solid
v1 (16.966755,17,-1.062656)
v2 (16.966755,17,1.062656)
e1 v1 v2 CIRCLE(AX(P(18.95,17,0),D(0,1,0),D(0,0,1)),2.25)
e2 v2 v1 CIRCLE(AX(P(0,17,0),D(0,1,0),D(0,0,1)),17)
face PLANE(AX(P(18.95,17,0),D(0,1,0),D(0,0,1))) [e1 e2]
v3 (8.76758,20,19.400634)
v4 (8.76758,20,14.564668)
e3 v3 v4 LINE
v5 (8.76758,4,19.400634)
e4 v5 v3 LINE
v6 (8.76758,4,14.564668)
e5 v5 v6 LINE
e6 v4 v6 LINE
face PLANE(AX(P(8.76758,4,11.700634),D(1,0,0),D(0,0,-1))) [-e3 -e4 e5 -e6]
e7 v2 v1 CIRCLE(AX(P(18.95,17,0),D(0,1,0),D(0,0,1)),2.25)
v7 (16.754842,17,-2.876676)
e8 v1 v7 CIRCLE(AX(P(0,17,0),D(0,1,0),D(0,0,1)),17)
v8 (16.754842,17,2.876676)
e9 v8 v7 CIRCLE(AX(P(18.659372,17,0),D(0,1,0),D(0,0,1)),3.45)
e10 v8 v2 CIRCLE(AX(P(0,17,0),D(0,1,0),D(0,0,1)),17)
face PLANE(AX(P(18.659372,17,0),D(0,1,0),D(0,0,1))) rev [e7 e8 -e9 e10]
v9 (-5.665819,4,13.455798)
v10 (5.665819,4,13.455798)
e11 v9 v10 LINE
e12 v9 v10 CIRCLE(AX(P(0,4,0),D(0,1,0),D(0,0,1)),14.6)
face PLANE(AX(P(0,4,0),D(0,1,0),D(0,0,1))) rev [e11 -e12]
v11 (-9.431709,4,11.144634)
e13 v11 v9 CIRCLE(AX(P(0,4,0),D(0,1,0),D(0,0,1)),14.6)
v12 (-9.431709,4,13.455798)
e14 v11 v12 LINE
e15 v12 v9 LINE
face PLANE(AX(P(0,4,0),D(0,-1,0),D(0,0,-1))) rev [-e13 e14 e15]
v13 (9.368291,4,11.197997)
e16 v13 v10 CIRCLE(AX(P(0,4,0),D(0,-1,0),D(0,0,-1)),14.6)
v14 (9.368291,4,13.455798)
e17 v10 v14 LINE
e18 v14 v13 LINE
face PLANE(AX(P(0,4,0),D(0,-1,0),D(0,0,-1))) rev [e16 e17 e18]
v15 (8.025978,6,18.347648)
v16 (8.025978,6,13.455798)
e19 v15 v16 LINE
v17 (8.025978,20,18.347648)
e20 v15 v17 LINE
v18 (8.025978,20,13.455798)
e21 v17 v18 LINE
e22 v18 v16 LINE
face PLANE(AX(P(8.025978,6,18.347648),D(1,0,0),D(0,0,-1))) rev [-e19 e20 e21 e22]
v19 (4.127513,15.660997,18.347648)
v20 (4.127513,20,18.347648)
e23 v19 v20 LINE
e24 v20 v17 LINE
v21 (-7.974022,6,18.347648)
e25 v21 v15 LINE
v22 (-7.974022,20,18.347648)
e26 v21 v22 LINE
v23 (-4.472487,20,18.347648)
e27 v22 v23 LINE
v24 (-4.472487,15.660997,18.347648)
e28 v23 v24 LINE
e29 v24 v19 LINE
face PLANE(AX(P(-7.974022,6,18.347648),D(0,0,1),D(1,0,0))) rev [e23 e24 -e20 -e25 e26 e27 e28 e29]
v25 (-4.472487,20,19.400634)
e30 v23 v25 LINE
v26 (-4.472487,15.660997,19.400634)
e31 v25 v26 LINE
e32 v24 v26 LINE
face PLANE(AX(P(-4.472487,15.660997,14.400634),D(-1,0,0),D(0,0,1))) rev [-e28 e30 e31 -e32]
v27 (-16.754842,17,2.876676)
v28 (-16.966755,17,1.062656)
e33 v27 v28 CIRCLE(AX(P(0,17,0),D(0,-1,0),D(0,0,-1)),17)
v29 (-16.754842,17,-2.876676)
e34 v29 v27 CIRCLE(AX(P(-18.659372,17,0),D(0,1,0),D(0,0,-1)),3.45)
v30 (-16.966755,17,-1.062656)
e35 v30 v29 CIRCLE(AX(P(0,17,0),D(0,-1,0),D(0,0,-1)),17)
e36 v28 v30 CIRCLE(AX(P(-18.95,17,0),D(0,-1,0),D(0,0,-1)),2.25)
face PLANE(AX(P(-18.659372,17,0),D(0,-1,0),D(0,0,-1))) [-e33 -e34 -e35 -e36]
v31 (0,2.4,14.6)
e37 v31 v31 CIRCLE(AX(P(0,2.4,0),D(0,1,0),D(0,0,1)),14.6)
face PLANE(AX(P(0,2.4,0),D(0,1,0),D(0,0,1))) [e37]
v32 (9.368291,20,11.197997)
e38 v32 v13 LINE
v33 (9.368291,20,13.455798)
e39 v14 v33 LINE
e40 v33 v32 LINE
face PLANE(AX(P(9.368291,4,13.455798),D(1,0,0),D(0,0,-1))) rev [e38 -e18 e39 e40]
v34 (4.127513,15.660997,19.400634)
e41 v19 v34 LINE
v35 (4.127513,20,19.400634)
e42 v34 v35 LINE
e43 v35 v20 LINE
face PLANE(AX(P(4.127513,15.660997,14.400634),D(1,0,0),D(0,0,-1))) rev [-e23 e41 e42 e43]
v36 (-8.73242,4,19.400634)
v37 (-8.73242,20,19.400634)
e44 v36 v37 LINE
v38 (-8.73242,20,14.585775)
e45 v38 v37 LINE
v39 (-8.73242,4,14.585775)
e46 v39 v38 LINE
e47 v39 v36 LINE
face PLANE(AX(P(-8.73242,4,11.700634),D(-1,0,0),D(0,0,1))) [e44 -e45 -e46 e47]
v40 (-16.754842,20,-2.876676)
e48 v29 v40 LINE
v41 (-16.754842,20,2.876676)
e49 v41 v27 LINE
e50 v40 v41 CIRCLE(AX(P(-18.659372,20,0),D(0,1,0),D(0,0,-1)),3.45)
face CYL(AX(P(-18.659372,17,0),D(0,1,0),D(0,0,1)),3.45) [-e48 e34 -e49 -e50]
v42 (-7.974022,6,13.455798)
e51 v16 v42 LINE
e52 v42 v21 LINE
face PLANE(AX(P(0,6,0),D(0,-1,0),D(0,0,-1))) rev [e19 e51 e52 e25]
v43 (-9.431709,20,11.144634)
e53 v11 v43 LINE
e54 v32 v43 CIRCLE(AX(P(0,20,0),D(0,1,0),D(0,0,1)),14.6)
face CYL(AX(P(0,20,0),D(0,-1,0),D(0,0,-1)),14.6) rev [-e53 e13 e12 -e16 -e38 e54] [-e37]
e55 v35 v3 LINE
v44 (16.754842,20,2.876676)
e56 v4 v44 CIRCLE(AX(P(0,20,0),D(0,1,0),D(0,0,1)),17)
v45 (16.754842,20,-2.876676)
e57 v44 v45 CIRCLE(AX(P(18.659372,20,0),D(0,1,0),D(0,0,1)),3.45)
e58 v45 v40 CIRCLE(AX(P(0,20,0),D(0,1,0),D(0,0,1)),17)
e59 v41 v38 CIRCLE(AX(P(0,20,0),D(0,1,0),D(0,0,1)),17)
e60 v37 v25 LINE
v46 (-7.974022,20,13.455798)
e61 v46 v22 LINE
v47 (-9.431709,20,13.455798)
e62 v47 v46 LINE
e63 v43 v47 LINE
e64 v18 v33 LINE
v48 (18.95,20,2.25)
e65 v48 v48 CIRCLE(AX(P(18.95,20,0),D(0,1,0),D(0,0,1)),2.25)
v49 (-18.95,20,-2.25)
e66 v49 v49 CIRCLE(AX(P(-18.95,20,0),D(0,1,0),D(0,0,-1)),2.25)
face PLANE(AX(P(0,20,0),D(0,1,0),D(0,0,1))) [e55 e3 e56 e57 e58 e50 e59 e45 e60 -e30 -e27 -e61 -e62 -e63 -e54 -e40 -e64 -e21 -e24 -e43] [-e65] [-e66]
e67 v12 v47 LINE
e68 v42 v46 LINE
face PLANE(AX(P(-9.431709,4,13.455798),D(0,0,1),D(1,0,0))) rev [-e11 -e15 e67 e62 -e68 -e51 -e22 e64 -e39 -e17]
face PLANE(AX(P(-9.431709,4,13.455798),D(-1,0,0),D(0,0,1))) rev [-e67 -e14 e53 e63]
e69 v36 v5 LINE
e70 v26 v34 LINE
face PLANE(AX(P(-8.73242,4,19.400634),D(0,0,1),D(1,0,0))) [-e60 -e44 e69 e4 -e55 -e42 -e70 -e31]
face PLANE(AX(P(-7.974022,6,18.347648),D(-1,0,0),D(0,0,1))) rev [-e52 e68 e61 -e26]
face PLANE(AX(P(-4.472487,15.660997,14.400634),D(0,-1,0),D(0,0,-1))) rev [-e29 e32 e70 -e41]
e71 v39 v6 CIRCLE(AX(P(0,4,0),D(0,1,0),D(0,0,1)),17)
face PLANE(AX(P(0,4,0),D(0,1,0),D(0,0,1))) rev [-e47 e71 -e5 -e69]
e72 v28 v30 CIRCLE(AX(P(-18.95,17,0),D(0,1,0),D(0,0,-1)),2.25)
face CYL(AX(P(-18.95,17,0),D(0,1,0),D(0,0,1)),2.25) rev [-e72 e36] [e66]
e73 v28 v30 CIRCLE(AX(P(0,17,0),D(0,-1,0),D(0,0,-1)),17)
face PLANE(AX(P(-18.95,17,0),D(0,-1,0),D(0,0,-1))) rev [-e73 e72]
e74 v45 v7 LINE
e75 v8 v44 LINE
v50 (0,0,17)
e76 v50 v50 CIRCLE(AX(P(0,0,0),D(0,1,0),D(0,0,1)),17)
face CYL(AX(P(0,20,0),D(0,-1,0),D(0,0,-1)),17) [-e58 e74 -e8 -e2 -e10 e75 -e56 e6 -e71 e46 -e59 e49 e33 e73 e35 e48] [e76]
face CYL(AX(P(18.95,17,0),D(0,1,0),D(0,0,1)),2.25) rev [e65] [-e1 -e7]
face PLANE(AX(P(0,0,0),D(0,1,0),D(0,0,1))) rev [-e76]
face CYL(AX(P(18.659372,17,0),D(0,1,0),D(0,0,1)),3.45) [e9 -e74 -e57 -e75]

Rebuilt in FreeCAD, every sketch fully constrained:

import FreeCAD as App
import Part
import Sketcher
from FreeCAD import Vector
Q = App.Units.Quantity


def edges_at(feature, points):
    """Names of the edges that pass closest to the given points."""
    edges = feature.Shape.Edges
    near = lambda p: min(range(len(edges)), key=lambda i: edges[i].distToShape(Part.Vertex(*p))[0])
    return sorted({f"Edge{near(p) + 1}" for p in points})


def faces_at(feature, points):
    """Names of the faces that lie closest to the given points."""
    faces = feature.Shape.Faces
    near = lambda p: min(range(len(faces)), key=lambda i: faces[i].distToShape(Part.Vertex(*p))[0])
    return sorted({f"Face{near(p) + 1}" for p in points})

doc = App.newDocument("Part")
params = doc.addObject("Spreadsheet::Sheet", "Params")
for row, (alias, value) in enumerate([
    ("sketch1_diameter", "34 mm"),
    ("pad1_length", "20 mm"),
    ("thickness_wall", "2.4 mm"),
    ("sketch2_diameter", "6.9 mm"),
    ("pad2_length", "3 mm"),
    ("sketch3_diameter", "4.5 mm"),
    ("pocket1_length", "3 mm"),
    ("sketch4_width", "17.5 mm"),
    ("sketch4_height", "7.7 mm"),
    ("pad3_length", "16 mm"),
    ("sketch5_width", "16 mm"),
    ("sketch5_height", "8.6 mm"),
    ("pocket2_length", "14 mm"),
    ("sketch6_width", "8.6 mm"),
    ("sketch6_height", "5.8 mm"),
    ("pocket3_length", "5 mm"),
    ("fillet_radius", "1 mm"),
    ("sketch7_height", "3 mm"),
    ("sketch7_width", "18.8 mm"),
    ("pocket4_length", "16 mm"),
], start=1):
    params.set(f"A{row}", alias)
    params.set(f"B{row}", "=" + value)
    params.setAlias(f"B{row}", alias)

body = doc.addObject("PartDesign::Body", "Body")

sketch1 = doc.addObject("Sketcher::SketchObject", "Sketch")
body.addObject(sketch1)
sketch1.AttachmentSupport = (doc.XZ_Plane, [""])
sketch1.MapMode = "FlatFace"
sketch1.addGeometry(Part.Circle(Vector(0, 0, 0), Vector(0, 0, 1), 17), False)
sketch1.addConstraint([
    Sketcher.Constraint("Coincident", 0, 3, -1, 1),
    Sketcher.Constraint("Diameter", 0, Q("34 mm")),
])
sketch1.setExpression("Constraints[1]", "Params.sketch1_diameter")
pad1 = doc.addObject("PartDesign::Pad", "Pad")
body.addObject(pad1)
pad1.Profile = sketch1
pad1.setExpression("Length", "Params.pad1_length")
pad1.Reversed = True
doc.recompute()

thickness = doc.addObject("PartDesign::Thickness", "Thickness")
body.addObject(thickness)
thickness.Base = (pad1, faces_at(pad1, [(0, 20, 0)]))
thickness.setExpression("Value", "Params.thickness_wall")
thickness.Reversed = True
thickness.Join = "Intersection"

sketch2 = doc.addObject("Sketcher::SketchObject", "Sketch001")
body.addObject(sketch2)
sketch2.AttachmentSupport = (doc.XZ_Plane, [""])
sketch2.MapMode = "FlatFace"
sketch2.AttachmentOffset = App.Placement(Vector(0, 0, -20), App.Rotation())
sketch2.addGeometry([
    Part.Circle(Vector(18.7, 0, 0), Vector(0, 0, 1), 3.5),
    Part.Circle(Vector(-18.7, 0, 0), Vector(0, 0, 1), 3.5),
], False)
sketch2.addConstraint([
    Sketcher.Constraint("Equal", 0, 1),
    Sketcher.Constraint("Symmetric", 0, 3, 1, 3, -1, 1),
    Sketcher.Constraint("PointOnObject", 0, 3, -1),
    Sketcher.Constraint("Diameter", 0, Q("6.9 mm")),
    Sketcher.Constraint("DistanceX", -1, 1, 0, 3, Q("18.659372 mm")),
])
sketch2.setExpression("Constraints[3]", "Params.sketch2_diameter")
pad2 = doc.addObject("PartDesign::Pad", "Pad001")
body.addObject(pad2)
pad2.Profile = sketch2
pad2.setExpression("Length", "Params.pad2_length")

sketch3 = doc.addObject("Sketcher::SketchObject", "Sketch002")
body.addObject(sketch3)
sketch3.AttachmentSupport = (doc.XZ_Plane, [""])
sketch3.MapMode = "FlatFace"
sketch3.AttachmentOffset = App.Placement(Vector(0, 0, -20), App.Rotation())
sketch3.addGeometry([
    Part.Circle(Vector(18.9, 0, 0), Vector(0, 0, 1), 2.2),
    Part.Circle(Vector(-18.9, 0, 0), Vector(0, 0, 1), 2.2),
], False)
sketch3.addConstraint([
    Sketcher.Constraint("Equal", 0, 1),
    Sketcher.Constraint("Symmetric", 0, 3, 1, 3, -1, 1),
    Sketcher.Constraint("PointOnObject", 0, 3, -1),
    Sketcher.Constraint("Diameter", 0, Q("4.5 mm")),
    Sketcher.Constraint("DistanceX", 1, 3, 0, 3, Q("37.9 mm")),
])
sketch3.setExpression("Constraints[3]", "Params.sketch3_diameter")
pocket1 = doc.addObject("PartDesign::Pocket", "Pocket")
body.addObject(pocket1)
pocket1.Profile = sketch3
pocket1.setExpression("Length", "Params.pocket1_length")
pocket1.Reversed = True

sketch4 = doc.addObject("Sketcher::SketchObject", "Sketch003")
body.addObject(sketch4)
sketch4.AttachmentSupport = (doc.XZ_Plane, [""])
sketch4.MapMode = "FlatFace"
sketch4.AttachmentOffset = App.Placement(Vector(0, 0, -20), App.Rotation())
sketch4.addGeometry([
    Part.LineSegment(Vector(-9, 12, 0), Vector(-9, 19, 0)),
    Part.LineSegment(Vector(-9, 19, 0), Vector(9, 19, 0)),
    Part.LineSegment(Vector(9, 19, 0), Vector(9, 12, 0)),
    Part.LineSegment(Vector(9, 12, 0), Vector(-9, 12, 0)),
], False)
sketch4.addConstraint([
    Sketcher.Constraint("Coincident", 0, 2, 1, 1),
    Sketcher.Constraint("Coincident", 1, 2, 2, 1),
    Sketcher.Constraint("Coincident", 2, 2, 3, 1),
    Sketcher.Constraint("Coincident", 3, 2, 0, 1),
    Sketcher.Constraint("Vertical", 0),
    Sketcher.Constraint("Horizontal", 1),
    Sketcher.Constraint("Vertical", 2),
    Sketcher.Constraint("Horizontal", 3),
    Sketcher.Constraint("DistanceX", 1, 1, 1, 2, Q("17.5 mm")),
    Sketcher.Constraint("DistanceY", 0, 1, 0, 2, Q("7.7 mm")),
    Sketcher.Constraint("DistanceX", 0, 2, -1, 1, Q("8.73242 mm")),
    Sketcher.Constraint("DistanceY", -1, 1, 0, 2, Q("19.400634 mm")),
])
sketch4.setExpression("Constraints[8]", "Params.sketch4_width")
sketch4.setExpression("Constraints[9]", "Params.sketch4_height")
pad3 = doc.addObject("PartDesign::Pad", "Pad002")
body.addObject(pad3)
pad3.Profile = sketch4
pad3.setExpression("Length", "Params.pad3_length")

sketch5 = doc.addObject("Sketcher::SketchObject", "Sketch004")
body.addObject(sketch5)
sketch5.AttachmentSupport = (doc.XZ_Plane, [""])
sketch5.MapMode = "FlatFace"
sketch5.AttachmentOffset = App.Placement(Vector(0, 0, -20), App.Rotation())
sketch5.addGeometry([
    Part.LineSegment(Vector(-8, 10, 0), Vector(-8, 18, 0)),
    Part.LineSegment(Vector(-8, 18, 0), Vector(8, 18, 0)),
    Part.LineSegment(Vector(8, 18, 0), Vector(8, 10, 0)),
    Part.LineSegment(Vector(8, 10, 0), Vector(-8, 10, 0)),
], False)
sketch5.addConstraint([
    Sketcher.Constraint("Coincident", 0, 2, 1, 1),
    Sketcher.Constraint("Coincident", 1, 2, 2, 1),
    Sketcher.Constraint("Coincident", 2, 2, 3, 1),
    Sketcher.Constraint("Coincident", 3, 2, 0, 1),
    Sketcher.Constraint("Vertical", 0),
    Sketcher.Constraint("Horizontal", 1),
    Sketcher.Constraint("Vertical", 2),
    Sketcher.Constraint("Horizontal", 3),
    Sketcher.Constraint("DistanceX", 1, 1, 1, 2, Q("16 mm")),
    Sketcher.Constraint("DistanceY", 0, 1, 0, 2, Q("8.6 mm")),
    Sketcher.Constraint("DistanceX", 0, 2, -1, 1, Q("7.974022 mm")),
    Sketcher.Constraint("DistanceY", -1, 1, 0, 2, Q("18.347648 mm")),
])
sketch5.setExpression("Constraints[8]", "Params.sketch5_width")
sketch5.setExpression("Constraints[9]", "Params.sketch5_height")
pocket2 = doc.addObject("PartDesign::Pocket", "Pocket001")
body.addObject(pocket2)
pocket2.Profile = sketch5
pocket2.setExpression("Length", "Params.pocket2_length")
pocket2.Reversed = True

sketch6 = doc.addObject("Sketcher::SketchObject", "Sketch005")
body.addObject(sketch6)
sketch6.AttachmentSupport = (doc.XY_Plane, [""])
sketch6.MapMode = "FlatFace"
sketch6.AttachmentOffset = App.Placement(Vector(0, 0, 19.400634), App.Rotation())
sketch6.addGeometry([
    Part.LineSegment(Vector(-4, 21, 0), Vector(-4, 16, 0)),
    Part.LineSegment(Vector(-4, 16, 0), Vector(4, 16, 0)),
    Part.LineSegment(Vector(4, 16, 0), Vector(4, 21, 0)),
    Part.LineSegment(Vector(4, 21, 0), Vector(-4, 21, 0)),
], False)
sketch6.addConstraint([
    Sketcher.Constraint("Coincident", 0, 2, 1, 1),
    Sketcher.Constraint("Coincident", 1, 2, 2, 1),
    Sketcher.Constraint("Coincident", 2, 2, 3, 1),
    Sketcher.Constraint("Coincident", 3, 2, 0, 1),
    Sketcher.Constraint("Vertical", 0),
    Sketcher.Constraint("Horizontal", 1),
    Sketcher.Constraint("Vertical", 2),
    Sketcher.Constraint("Horizontal", 3),
    Sketcher.Constraint("DistanceX", 1, 1, 1, 2, Q("8.6 mm")),
    Sketcher.Constraint("DistanceY", 0, 2, 0, 1, Q("5.8 mm")),
    Sketcher.Constraint("DistanceX", 0, 2, -1, 1, Q("4.472487 mm")),
    Sketcher.Constraint("DistanceY", -1, 1, 0, 2, Q("15.660997 mm")),
])
sketch6.setExpression("Constraints[8]", "Params.sketch6_width")
sketch6.setExpression("Constraints[9]", "Params.sketch6_height")
pocket3 = doc.addObject("PartDesign::Pocket", "Pocket002")
body.addObject(pocket3)
pocket3.Profile = sketch6
pocket3.setExpression("Length", "Params.pocket3_length")
doc.recompute()

fillet = doc.addObject("PartDesign::Fillet", "Fillet")
body.addObject(fillet)
fillet.Base = (pocket3, edges_at(pocket3, [(0, 4, 11.701)]))
fillet.setExpression("Radius", "Params.fillet_radius")

sketch7 = doc.addObject("Sketcher::SketchObject", "Sketch006")
body.addObject(sketch7)
sketch7.AttachmentSupport = (doc.XZ_Plane, [""])
sketch7.MapMode = "FlatFace"
sketch7.AttachmentOffset = App.Placement(Vector(0, 0, -20), App.Rotation())
sketch7.addGeometry([
    Part.LineSegment(Vector(-9.4, 10.5, 0), Vector(-9.4, 13.5, 0)),
    Part.LineSegment(Vector(-9.4, 13.5, 0), Vector(9.4, 13.5, 0)),
    Part.LineSegment(Vector(9.4, 13.5, 0), Vector(9.4, 10.5, 0)),
    Part.LineSegment(Vector(9.4, 10.5, 0), Vector(-9.4, 10.5, 0)),
], False)
sketch7.addConstraint([
    Sketcher.Constraint("Coincident", 0, 2, 1, 1),
    Sketcher.Constraint("Coincident", 1, 2, 2, 1),
    Sketcher.Constraint("Coincident", 2, 2, 3, 1),
    Sketcher.Constraint("Coincident", 3, 2, 0, 1),
    Sketcher.Constraint("Vertical", 0),
    Sketcher.Constraint("Horizontal", 1),
    Sketcher.Constraint("Vertical", 2),
    Sketcher.Constraint("Horizontal", 3),
    Sketcher.Constraint("DistanceY", 0, 1, 0, 2, Q("3 mm")),
    Sketcher.Constraint("DistanceX", 1, 1, 1, 2, Q("18.8 mm")),
    Sketcher.Constraint("DistanceY", -1, 1, 0, 2, Q("13.455798 mm")),
    Sketcher.Constraint("DistanceX", 0, 2, -1, 1, Q("9.431709 mm")),
])
sketch7.setExpression("Constraints[8]", "Params.sketch7_height")
sketch7.setExpression("Constraints[9]", "Params.sketch7_width")
pocket4 = doc.addObject("PartDesign::Pocket", "Pocket003")
body.addObject(pocket4)
pocket4.Profile = sketch7
pocket4.setExpression("Length", "Params.pocket4_length")
pocket4.Reversed = True

doc.recompute()
